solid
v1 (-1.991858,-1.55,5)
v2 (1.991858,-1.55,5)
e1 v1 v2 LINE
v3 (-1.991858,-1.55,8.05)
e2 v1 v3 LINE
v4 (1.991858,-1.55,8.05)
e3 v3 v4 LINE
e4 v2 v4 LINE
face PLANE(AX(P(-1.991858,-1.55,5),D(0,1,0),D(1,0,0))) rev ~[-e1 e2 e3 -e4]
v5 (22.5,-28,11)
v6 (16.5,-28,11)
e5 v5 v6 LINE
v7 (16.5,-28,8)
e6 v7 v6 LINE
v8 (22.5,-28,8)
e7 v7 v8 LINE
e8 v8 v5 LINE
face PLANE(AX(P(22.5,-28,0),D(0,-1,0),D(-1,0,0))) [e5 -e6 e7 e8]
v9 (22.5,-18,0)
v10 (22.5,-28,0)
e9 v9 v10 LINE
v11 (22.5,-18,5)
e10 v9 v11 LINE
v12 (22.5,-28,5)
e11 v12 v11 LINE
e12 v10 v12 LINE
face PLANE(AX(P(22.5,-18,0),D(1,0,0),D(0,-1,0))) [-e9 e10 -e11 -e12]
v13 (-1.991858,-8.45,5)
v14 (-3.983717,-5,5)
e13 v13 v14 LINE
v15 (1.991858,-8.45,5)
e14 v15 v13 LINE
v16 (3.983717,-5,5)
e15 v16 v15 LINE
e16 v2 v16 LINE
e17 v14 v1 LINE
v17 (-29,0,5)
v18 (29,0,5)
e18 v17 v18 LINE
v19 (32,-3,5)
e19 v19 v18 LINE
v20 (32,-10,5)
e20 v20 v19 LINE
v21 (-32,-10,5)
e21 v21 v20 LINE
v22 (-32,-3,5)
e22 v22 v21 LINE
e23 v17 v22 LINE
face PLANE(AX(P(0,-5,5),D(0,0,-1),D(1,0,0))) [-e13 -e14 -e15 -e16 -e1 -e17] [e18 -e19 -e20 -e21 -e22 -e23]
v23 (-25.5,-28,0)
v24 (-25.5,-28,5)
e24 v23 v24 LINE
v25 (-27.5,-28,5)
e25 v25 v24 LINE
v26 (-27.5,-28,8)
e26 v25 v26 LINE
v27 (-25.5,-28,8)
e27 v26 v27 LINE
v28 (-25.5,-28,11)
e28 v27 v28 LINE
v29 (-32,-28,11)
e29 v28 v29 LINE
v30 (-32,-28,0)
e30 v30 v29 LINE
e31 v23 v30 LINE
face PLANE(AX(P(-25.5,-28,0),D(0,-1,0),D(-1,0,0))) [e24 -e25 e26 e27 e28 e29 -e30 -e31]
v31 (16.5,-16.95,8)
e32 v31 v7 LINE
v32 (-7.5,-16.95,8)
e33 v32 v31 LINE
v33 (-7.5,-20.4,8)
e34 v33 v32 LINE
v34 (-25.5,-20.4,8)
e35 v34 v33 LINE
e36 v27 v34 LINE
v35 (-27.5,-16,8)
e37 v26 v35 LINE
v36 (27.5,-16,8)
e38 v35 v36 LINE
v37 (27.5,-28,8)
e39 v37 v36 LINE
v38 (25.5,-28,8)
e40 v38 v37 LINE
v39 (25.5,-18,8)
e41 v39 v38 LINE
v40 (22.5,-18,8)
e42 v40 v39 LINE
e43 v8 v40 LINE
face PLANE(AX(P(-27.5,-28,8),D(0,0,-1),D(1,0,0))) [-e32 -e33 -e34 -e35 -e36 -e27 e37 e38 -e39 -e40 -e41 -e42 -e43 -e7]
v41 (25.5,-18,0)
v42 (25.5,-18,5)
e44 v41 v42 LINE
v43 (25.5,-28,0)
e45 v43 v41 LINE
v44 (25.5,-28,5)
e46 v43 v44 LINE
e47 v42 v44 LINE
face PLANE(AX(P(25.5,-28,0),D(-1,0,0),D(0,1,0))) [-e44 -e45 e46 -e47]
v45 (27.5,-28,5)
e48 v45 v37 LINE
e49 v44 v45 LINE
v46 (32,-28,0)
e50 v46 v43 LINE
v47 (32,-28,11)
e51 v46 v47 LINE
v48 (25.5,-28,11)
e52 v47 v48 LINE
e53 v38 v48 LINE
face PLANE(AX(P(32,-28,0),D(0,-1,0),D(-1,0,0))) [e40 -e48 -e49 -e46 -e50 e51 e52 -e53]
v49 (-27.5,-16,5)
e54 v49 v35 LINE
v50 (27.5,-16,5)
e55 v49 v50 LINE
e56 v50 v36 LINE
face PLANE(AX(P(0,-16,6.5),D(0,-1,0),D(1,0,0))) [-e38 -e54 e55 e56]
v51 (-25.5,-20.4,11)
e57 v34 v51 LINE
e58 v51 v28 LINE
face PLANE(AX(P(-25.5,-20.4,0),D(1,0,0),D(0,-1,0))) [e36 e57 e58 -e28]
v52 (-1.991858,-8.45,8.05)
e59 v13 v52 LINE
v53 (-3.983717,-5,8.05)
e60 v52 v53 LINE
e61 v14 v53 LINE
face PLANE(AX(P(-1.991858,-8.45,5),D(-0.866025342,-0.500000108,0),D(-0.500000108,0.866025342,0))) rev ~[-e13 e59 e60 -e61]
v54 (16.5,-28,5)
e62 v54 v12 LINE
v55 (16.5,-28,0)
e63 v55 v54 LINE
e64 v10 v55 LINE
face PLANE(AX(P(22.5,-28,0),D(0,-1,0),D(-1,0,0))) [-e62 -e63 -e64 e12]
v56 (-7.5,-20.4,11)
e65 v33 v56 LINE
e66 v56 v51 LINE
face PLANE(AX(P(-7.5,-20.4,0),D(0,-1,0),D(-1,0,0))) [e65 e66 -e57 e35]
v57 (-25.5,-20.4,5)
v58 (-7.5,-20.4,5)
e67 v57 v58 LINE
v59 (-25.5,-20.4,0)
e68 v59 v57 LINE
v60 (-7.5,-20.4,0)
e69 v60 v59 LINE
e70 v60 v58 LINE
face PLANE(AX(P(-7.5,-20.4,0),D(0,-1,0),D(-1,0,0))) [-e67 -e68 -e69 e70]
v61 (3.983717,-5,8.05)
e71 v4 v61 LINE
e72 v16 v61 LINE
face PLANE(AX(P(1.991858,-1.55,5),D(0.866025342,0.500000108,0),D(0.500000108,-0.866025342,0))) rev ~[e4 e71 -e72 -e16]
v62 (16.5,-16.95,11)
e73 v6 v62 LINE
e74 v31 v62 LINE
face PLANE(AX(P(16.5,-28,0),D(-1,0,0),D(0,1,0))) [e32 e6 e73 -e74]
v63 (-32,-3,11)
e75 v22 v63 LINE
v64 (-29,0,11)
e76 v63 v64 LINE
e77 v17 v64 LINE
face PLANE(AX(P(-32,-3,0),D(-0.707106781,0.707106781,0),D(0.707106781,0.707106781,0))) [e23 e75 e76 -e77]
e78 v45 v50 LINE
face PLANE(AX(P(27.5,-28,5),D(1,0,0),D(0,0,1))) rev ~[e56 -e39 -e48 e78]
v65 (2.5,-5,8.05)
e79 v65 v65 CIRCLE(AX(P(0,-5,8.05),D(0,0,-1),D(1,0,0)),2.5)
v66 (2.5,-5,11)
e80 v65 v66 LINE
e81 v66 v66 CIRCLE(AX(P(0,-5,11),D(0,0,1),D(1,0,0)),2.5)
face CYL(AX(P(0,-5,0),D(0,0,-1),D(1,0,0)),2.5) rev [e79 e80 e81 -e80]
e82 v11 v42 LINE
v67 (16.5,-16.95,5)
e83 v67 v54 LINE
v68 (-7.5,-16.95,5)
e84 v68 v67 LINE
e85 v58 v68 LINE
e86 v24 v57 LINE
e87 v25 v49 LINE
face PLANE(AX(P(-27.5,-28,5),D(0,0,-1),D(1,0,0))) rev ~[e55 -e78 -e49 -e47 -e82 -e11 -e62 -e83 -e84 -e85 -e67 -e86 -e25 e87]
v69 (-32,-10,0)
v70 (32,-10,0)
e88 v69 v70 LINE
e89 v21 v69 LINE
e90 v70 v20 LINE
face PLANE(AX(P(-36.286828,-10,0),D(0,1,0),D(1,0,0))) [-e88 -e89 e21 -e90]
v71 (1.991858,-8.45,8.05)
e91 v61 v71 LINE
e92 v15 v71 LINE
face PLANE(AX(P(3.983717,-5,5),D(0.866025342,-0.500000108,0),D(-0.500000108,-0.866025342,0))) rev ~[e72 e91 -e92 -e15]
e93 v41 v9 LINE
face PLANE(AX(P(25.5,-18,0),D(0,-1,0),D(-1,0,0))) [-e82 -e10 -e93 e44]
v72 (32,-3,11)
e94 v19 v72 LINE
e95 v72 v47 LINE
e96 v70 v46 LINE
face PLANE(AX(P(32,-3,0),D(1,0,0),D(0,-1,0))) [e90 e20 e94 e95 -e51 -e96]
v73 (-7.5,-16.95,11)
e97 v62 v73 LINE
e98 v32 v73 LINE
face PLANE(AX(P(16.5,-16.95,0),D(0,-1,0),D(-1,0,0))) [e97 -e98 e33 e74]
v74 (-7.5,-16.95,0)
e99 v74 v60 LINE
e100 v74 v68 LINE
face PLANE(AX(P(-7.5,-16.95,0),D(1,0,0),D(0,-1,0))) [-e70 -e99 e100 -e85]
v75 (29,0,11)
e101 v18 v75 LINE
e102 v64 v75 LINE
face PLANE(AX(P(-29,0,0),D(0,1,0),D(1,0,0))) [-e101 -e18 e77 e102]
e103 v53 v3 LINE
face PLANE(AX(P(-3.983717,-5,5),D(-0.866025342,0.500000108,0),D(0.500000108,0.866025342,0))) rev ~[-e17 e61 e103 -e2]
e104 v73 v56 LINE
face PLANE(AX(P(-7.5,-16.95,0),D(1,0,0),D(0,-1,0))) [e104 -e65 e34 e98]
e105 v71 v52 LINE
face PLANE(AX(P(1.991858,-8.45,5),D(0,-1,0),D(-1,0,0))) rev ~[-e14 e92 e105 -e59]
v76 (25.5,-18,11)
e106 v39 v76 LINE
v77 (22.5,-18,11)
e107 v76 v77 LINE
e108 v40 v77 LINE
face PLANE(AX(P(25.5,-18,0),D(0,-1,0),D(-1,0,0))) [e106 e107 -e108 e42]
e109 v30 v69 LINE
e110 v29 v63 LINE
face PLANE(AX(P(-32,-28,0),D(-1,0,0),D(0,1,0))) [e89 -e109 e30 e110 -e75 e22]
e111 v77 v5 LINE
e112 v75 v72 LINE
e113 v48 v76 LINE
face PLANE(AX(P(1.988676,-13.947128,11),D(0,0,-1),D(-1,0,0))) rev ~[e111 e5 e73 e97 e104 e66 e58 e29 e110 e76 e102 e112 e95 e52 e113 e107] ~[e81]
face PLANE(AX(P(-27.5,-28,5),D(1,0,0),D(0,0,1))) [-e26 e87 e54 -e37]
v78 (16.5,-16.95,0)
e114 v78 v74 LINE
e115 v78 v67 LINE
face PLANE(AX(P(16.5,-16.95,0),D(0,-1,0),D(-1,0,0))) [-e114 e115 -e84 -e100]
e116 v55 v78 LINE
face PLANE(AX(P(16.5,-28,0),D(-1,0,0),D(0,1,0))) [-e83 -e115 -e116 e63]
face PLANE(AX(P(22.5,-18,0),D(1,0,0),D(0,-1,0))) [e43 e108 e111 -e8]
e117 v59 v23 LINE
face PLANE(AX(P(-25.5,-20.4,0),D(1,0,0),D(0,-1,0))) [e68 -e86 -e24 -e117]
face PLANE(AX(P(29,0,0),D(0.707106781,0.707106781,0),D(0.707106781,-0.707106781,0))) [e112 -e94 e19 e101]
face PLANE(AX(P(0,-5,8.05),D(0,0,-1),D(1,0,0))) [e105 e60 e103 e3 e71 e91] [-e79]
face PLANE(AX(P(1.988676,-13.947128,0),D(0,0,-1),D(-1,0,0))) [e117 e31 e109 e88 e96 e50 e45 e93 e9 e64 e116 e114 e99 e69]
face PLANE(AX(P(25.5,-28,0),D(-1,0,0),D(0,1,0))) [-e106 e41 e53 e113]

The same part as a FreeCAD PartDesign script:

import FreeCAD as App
import Part
import Sketcher
from FreeCAD import Vector
Q = App.Units.Quantity


def add_polygon(sketch, points):
    """Adds a closed chain of lines whose ends are joined by coincident constraints."""
    first, n = sketch.GeometryCount, len(points)
    for a, b in zip(points, points[1:] + points[:1]):
        sketch.addGeometry(Part.LineSegment(App.Vector(*a, 0), App.Vector(*b, 0)), False)
    for i in range(n):
        sketch.addConstraint(Sketcher.Constraint("Coincident", first + i, 2, first + (i + 1) % n, 1))

doc = App.newDocument("Part")
body = doc.addObject("PartDesign::Body", "Body")

sketch1 = body.newObject("Sketcher::SketchObject", "Sketch")
sketch1.AttachmentSupport = (doc.getObject("XY_Plane"), [""])
sketch1.MapMode = "FlatFace"
add_polygon(sketch1, [(-32, -3), (-32, -28), (-25.5, -28), (-25.5, -20.4), (-7.5, -20.4), (-7.5, -16.9), (16.5, -16.9), (16.5, -28), (22.5, -28), (22.5, -18), (25.5, -18), (25.5, -28), (32, -28), (32, -3), (29, 0), (-29, 0)])
sketch1.addGeometry(Part.Circle(Vector(0, -5, 0), Vector(0, 0, 1), 2.5), False)
sketch1.addConstraint(Sketcher.Constraint("Vertical", 0))
sketch1.addConstraint(Sketcher.Constraint("Horizontal", 1))
sketch1.addConstraint(Sketcher.Constraint("Vertical", 2))
sketch1.addConstraint(Sketcher.Constraint("Horizontal", 3))
sketch1.addConstraint(Sketcher.Constraint("Vertical", 4))
sketch1.addConstraint(Sketcher.Constraint("Horizontal", 5))
sketch1.addConstraint(Sketcher.Constraint("Vertical", 6))
sketch1.addConstraint(Sketcher.Constraint("Horizontal", 7))
sketch1.addConstraint(Sketcher.Constraint("Vertical", 8))
sketch1.addConstraint(Sketcher.Constraint("Horizontal", 9))
sketch1.addConstraint(Sketcher.Constraint("Vertical", 10))
sketch1.addConstraint(Sketcher.Constraint("Horizontal", 11))
sketch1.addConstraint(Sketcher.Constraint("Vertical", 12))
sketch1.addConstraint(Sketcher.Constraint("Horizontal", 14))
sketch1.addConstraint(Sketcher.Constraint("Symmetric", 13, 2, 14, 2, -1, 1))
sketch1.addConstraint(Sketcher.Constraint("Symmetric", 1, 2, 10, 2, -2))
sketch1.addConstraint(Sketcher.Constraint("Symmetric", 12, 2, 15, 2, -2))
sketch1.addConstraint(Sketcher.Constraint("PointOnObject", 16, 3, -2))
sketch1.addConstraint(Sketcher.Constraint("Perpendicular", 13, 15))
sketch1.addConstraint(Sketcher.Constraint("Horizontal", 1, 2, 6, 2))
sketch1.addConstraint(Sketcher.Constraint("Diameter", 16, 5.0))
sketch1.addConstraint(Sketcher.Constraint("DistanceX", 3, 1, 3, 2, 18.0))
sketch1.addConstraint(Sketcher.Constraint("DistanceX", 5, 1, 5, 2, 24.0))
sketch1.addConstraint(Sketcher.Constraint("DistanceX", 7, 1, 7, 2, 6.0))
sketch1.addConstraint(Sketcher.Constraint("DistanceX", 9, 1, 9, 2, 3.0))
sketch1.addConstraint(Sketcher.Constraint("DistanceX", 14, 2, 14, 1, 58.0))
sketch1.addConstraint(Sketcher.Constraint("DistanceY", 0, 2, 0, 1, 25.0))
sketch1.addConstraint(Sketcher.Constraint("DistanceY", 8, 1, 8, 2, 10.0))
sketch1.addConstraint(Sketcher.Constraint("DistanceX", 1, 1, 1, 2, 6.5))
sketch1.addConstraint(Sketcher.Constraint("DistanceY", 2, 1, 2, 2, 7.6))
sketch1.addConstraint(Sketcher.Constraint("DistanceY", 16, 3, -1, 1, 5.0))
sketch1.addConstraint(Sketcher.Constraint("DistanceY", 4, 1, 4, 2, 3.45))
pad1 = body.newObject("PartDesign::Pad", "Pad")
pad1.Profile = sketch1
pad1.Length = 11

sketch2 = body.newObject("Sketcher::SketchObject", "Sketch001")
sketch2.AttachmentSupport = (doc.getObject("XY_Plane"), [""])
sketch2.MapMode = "FlatFace"
add_polygon(sketch2, [(-36, -10), (-36, 0), (36, 0), (36, -10)])
sketch2.addConstraint(Sketcher.Constraint("Vertical", 0))
sketch2.addConstraint(Sketcher.Constraint("Horizontal", 1))
sketch2.addConstraint(Sketcher.Constraint("Vertical", 2))
sketch2.addConstraint(Sketcher.Constraint("Horizontal", 3))
sketch2.addConstraint(Sketcher.Constraint("Symmetric", 0, 2, 1, 2, -1, 1))
sketch2.addConstraint(Sketcher.Constraint("DistanceY", 0, 1, 0, 2, 10.0))
sketch2.addConstraint(Sketcher.Constraint("DistanceX", 1, 1, 1, 2, 72.573656))
pocket1 = body.newObject("PartDesign::Pocket", "Pocket")
pocket1.Profile = sketch2
pocket1.Length = 5
pocket1.Reversed = True

sketch3 = body.newObject("Sketcher::SketchObject", "Sketch002")
sketch3.AttachmentSupport = (doc.getObject("XY_Plane"), [""])
sketch3.MapMode = "FlatFace"
sketch3.AttachmentOffset = App.Placement(Vector(0, 0, 5), App.Rotation())
add_polygon(sketch3, [(4, -5), (2, -8.4), (-2, -8.4), (-4, -5), (-2, -1.6), (2, -1.6)])
sketch3.addConstraint(Sketcher.Constraint("Horizontal", 1))
sketch3.addConstraint(Sketcher.Constraint("Horizontal", 4))
sketch3.addConstraint(Sketcher.Constraint("Symmetric", 2, 2, 5, 2, -2))
sketch3.addConstraint(Sketcher.Constraint("Parallel", 0, 3))
sketch3.addConstraint(Sketcher.Constraint("Parallel", 2, 5))
sketch3.addConstraint(Sketcher.Constraint("Vertical", 1, 2, 3, 2))
sketch3.addConstraint(Sketcher.Constraint("Vertical", 0, 2, 4, 2))
sketch3.addConstraint(Sketcher.Constraint("Angle", 0, Q("-120.000007 deg")))
sketch3.addConstraint(Sketcher.Constraint("DistanceY", 2, 2, -1, 1, 5.0))
sketch3.addConstraint(Sketcher.Constraint("DistanceY", 1, 2, 3, 2, 6.9))
sketch3.addConstraint(Sketcher.Constraint("DistanceX", 1, 2, 1, 1, 3.983716))
pocket2 = body.newObject("PartDesign::Pocket", "Pocket001")
pocket2.Profile = sketch3
pocket2.Length = 3.05
pocket2.Reversed = True

sketch4 = body.newObject("Sketcher::SketchObject", "Sketch003")
sketch4.AttachmentSupport = (doc.getObject("XZ_Plane"), [""])
sketch4.MapMode = "FlatFace"
sketch4.AttachmentOffset = App.Placement(Vector(0, 0, 28), App.Rotation())
add_polygon(sketch4, [(-27.5, 8), (-27.5, 5), (27.5, 5), (27.5, 8)])
sketch4.addConstraint(Sketcher.Constraint("Vertical", 0))
sketch4.addConstraint(Sketcher.Constraint("Horizontal", 1))
sketch4.addConstraint(Sketcher.Constraint("Vertical", 2))
sketch4.addConstraint(Sketcher.Constraint("Horizontal", 3))
sketch4.addConstraint(Sketcher.Constraint("DistanceX", 1, 1, 1, 2, 55.0))
sketch4.addConstraint(Sketcher.Constraint("DistanceY", 0, 2, 0, 1, 3.0))
sketch4.addConstraint(Sketcher.Constraint("DistanceY", -1, 1, 0, 2, 5.0))
sketch4.addConstraint(Sketcher.Constraint("DistanceX", 0, 2, -1, 1, 27.5))
pocket3 = body.newObject("PartDesign::Pocket", "Pocket002")
pocket3.Profile = sketch4
pocket3.Length = 12

doc.recompute()
